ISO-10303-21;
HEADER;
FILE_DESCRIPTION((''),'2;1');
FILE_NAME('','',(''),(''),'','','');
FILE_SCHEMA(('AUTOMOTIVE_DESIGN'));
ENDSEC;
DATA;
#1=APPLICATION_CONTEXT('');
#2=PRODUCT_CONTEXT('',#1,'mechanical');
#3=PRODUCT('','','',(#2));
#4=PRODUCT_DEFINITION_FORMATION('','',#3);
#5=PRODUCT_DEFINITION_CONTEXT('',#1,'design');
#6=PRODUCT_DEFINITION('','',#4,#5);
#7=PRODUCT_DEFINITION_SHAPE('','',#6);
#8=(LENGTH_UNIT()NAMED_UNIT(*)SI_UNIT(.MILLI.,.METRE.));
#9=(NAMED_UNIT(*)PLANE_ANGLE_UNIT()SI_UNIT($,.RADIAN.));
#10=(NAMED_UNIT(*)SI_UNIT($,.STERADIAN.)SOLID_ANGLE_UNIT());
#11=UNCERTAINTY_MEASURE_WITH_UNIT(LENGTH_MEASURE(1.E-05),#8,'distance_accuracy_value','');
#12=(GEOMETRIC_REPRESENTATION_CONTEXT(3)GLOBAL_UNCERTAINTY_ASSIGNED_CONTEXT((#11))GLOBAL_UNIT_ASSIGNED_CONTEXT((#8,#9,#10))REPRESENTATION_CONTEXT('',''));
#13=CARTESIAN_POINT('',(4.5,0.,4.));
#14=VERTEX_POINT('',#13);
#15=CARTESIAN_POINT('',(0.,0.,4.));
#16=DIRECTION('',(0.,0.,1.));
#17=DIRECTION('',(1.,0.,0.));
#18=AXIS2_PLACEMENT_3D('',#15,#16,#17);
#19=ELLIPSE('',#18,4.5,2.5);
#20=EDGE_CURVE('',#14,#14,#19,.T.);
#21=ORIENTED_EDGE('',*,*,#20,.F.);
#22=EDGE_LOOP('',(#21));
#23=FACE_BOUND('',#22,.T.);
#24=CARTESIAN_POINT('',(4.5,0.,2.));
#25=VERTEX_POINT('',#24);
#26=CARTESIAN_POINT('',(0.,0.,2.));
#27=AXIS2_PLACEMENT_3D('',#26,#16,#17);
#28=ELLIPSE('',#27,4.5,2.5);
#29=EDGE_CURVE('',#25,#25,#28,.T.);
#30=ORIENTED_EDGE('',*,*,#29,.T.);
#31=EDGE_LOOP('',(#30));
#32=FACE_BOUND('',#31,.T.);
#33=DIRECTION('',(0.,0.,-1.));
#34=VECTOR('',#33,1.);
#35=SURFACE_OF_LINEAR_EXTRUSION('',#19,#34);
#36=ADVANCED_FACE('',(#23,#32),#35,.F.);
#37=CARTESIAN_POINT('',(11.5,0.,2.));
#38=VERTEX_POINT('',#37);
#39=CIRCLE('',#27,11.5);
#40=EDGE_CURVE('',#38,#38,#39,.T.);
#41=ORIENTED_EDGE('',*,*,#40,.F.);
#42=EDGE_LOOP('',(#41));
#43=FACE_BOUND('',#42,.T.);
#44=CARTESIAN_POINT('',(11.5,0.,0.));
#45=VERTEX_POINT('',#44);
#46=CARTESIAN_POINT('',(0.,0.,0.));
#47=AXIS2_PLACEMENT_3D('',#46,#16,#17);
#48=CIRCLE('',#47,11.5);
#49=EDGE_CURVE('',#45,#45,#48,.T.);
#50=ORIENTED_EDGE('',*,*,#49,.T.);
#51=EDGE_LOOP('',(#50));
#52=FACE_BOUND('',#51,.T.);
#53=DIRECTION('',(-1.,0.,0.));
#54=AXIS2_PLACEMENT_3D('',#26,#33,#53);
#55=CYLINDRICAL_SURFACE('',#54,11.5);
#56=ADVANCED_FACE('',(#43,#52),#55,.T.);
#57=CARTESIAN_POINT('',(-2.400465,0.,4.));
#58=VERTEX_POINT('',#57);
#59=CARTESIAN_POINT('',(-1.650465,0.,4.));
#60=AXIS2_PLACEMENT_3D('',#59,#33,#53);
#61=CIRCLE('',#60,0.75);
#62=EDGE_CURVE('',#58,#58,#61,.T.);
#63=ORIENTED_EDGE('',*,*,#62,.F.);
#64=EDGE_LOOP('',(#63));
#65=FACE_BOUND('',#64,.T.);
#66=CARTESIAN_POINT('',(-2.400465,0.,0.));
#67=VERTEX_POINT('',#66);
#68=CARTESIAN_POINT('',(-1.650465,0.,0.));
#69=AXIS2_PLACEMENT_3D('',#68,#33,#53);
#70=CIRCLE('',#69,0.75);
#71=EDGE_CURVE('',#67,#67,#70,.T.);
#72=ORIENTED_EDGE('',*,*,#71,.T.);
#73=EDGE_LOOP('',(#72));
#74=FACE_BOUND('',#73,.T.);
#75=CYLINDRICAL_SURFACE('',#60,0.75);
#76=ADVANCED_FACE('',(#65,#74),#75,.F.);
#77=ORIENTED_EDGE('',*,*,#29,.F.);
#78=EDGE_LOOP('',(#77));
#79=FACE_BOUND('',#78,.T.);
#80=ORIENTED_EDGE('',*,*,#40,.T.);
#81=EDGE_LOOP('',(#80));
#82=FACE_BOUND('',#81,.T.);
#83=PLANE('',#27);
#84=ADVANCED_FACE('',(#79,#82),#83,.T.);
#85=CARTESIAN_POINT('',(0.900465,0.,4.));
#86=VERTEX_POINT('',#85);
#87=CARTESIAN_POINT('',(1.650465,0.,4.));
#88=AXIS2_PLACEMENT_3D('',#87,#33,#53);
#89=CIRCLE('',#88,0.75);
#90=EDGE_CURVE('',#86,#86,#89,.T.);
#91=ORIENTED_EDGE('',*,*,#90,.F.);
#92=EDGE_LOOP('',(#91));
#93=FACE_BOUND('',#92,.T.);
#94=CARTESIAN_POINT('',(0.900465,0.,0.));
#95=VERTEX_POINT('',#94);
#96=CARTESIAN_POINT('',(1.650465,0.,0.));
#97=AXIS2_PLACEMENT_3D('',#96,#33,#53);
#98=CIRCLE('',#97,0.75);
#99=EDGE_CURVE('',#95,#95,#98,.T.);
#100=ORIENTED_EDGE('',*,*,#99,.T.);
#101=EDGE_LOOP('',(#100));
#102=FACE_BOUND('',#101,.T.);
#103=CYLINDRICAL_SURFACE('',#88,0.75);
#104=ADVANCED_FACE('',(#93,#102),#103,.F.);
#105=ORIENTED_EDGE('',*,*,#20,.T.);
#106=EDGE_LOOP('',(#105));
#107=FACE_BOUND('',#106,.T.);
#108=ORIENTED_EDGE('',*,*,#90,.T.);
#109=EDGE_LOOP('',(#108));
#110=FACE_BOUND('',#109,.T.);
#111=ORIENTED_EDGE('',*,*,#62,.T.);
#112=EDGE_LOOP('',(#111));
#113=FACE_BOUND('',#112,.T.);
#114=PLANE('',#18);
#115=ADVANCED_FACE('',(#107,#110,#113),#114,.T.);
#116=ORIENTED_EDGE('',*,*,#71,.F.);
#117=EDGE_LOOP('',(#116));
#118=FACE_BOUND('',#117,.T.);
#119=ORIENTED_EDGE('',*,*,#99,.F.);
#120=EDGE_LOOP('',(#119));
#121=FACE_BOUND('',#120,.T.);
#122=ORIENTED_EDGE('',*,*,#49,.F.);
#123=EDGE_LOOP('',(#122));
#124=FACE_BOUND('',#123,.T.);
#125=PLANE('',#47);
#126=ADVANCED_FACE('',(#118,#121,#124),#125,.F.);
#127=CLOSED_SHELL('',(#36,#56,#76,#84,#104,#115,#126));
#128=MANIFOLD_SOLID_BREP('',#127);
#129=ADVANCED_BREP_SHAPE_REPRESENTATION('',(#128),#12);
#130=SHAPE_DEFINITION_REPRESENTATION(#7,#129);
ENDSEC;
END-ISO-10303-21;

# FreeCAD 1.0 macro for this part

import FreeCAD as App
import Part
import Sketcher

doc = App.newDocument("Part")
body = doc.addObject("PartDesign::Body", "Body")

# Sketch on XY plane
sketch1 = body.newObject("Sketcher::SketchObject", "Sketch")
sketch1.AttachmentSupport = (doc.getObject("XY_Plane"), [""])
sketch1.MapMode = "FlatFace"
sketch1.addGeometry(Part.Circle(App.Vector(0, 0, 0), App.Vector(0, 0, 1), 12), False)
sketch1.addConstraint([
    Sketcher.Constraint("Coincident", 0, 3, -1, 1),
    Sketcher.Constraint("Diameter", 0, 23.0),
])
pad1 = body.newObject("PartDesign::Pad", "Pad")
pad1.Profile = sketch1
pad1.Length = 2

# Sketch on XY plane
sketch2 = body.newObject("Sketcher::SketchObject", "Sketch001")
sketch2.AttachmentSupport = (doc.getObject("XY_Plane"), [""])
sketch2.MapMode = "FlatFace"
sketch2.AttachmentOffset = App.Placement(App.Vector(0, 0, 2), App.Rotation())
sketch2.addGeometry(Part.Ellipse(App.Vector(4.5, 0, 0), App.Vector(0, 2.5, 0), App.Vector(0, 0, 0)), False)
sketch2.addConstraint(Sketcher.Constraint("Block", 0))
pad2 = body.newObject("PartDesign::Pad", "Pad001")
pad2.Profile = sketch2
pad2.Length = 2

# Sketch on XY plane
sketch3 = body.newObject("Sketcher::SketchObject", "Sketch002")
sketch3.AttachmentSupport = (doc.getObject("XY_Plane"), [""])
sketch3.MapMode = "FlatFace"
sketch3.addGeometry([
    Part.Circle(App.Vector(-1.7, 0, 0), App.Vector(0, 0, 1), 0.8),
    Part.Circle(App.Vector(1.7, 0, 0), App.Vector(0, 0, 1), 0.8),
], False)
sketch3.addConstraint([
    Sketcher.Constraint("Equal", 0, 1),
    Sketcher.Constraint("Symmetric", 0, 3, 1, 3, -1, 1),
    Sketcher.Constraint("PointOnObject", 0, 3, -1),
    Sketcher.Constraint("Diameter", 0, 1.5),
    Sketcher.Constraint("DistanceX", 0, 3, 1, 3, 3.300929),
])
pocket1 = body.newObject("PartDesign::Pocket", "Pocket")
pocket1.Profile = sketch3
pocket1.Type = "ThroughAll"
pocket1.Reversed = True

doc.recompute()
